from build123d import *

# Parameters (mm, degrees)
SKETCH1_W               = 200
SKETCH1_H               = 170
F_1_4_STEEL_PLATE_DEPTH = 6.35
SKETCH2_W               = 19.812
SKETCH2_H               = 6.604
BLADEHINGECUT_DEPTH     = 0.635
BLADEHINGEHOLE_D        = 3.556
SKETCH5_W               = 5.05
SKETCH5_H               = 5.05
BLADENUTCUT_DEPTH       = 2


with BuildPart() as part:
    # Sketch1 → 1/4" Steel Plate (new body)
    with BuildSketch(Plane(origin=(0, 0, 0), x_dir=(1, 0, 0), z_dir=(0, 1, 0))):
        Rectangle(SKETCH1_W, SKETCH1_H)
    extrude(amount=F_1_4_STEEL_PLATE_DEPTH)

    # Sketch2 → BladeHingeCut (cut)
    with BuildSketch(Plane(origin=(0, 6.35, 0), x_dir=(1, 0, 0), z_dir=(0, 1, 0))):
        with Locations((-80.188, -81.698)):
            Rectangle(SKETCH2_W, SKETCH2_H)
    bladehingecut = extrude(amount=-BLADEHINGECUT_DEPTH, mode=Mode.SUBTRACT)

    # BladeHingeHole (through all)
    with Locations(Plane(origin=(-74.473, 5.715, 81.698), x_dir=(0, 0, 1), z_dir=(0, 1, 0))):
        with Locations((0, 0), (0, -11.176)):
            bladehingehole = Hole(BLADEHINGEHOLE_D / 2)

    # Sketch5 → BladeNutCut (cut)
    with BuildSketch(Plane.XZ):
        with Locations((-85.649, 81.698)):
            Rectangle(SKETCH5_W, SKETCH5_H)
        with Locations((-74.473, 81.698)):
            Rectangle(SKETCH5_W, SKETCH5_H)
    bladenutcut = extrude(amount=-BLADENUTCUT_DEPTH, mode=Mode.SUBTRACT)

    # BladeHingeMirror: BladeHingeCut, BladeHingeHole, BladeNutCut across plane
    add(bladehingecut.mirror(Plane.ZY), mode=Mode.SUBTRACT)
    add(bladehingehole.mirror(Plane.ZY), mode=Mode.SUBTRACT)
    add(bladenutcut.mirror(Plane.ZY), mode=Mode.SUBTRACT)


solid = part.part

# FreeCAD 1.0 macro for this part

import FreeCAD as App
import Part
import Sketcher
Q = App.Units.Quantity

doc = App.newDocument("Part")
params = doc.addObject("Spreadsheet::Sheet", "Params")
for row, (alias, value) in enumerate([
    ("pad1_length", "0.25 in"),
    ("sketch2_width", "0.78 in"),
    ("sketch2_height", "0.26 in"),
    ("pocket1_length", "0.025 in"),
    ("sketch3_diameter", "0.14 in"),
    ("hole_diameter", "0.14 in"),
    ("pocket2_length", "2 mm"),
], start=1):
    params.set(f"A{row}", alias)
    params.set(f"B{row}", "=" + value)
    params.setAlias(f"B{row}", alias)

body = doc.addObject("PartDesign::Body", "Body")

# Sketch on XZ plane
sketch1 = doc.addObject("Sketcher::SketchObject", "Sketch")
body.addObject(sketch1)
sketch1.AttachmentSupport = (doc.XZ_Plane, [""])
sketch1.MapMode = "FlatFace"
sketch1.addGeometry([
    Part.LineSegment(App.Vector(-100, -85, 0), App.Vector(-100, 85, 0)),
    Part.LineSegment(App.Vector(-100, 85, 0), App.Vector(100, 85, 0)),
    Part.LineSegment(App.Vector(100, 85, 0), App.Vector(100, -85, 0)),
    Part.LineSegment(App.Vector(100, -85, 0), App.Vector(-100, -85, 0)),
], False)
sketch1.addConstraint([
    Sketcher.Constraint("Coincident", 0, 2, 1, 1),
    Sketcher.Constraint("Coincident", 1, 2, 2, 1),
    Sketcher.Constraint("Coincident", 2, 2, 3, 1),
    Sketcher.Constraint("Coincident", 3, 2, 0, 1),
    Sketcher.Constraint("Vertical", 0),
    Sketcher.Constraint("Horizontal", 1),
    Sketcher.Constraint("Vertical", 2),
    Sketcher.Constraint("Horizontal", 3),
    Sketcher.Constraint("Symmetric", 0, 2, 2, 2, -1, 1),
    Sketcher.Constraint("DistanceX", 1, 1, 1, 2, Q("200 mm")),
    Sketcher.Constraint("DistanceY", 0, 1, 0, 2, Q("170 mm")),
])
pad1 = doc.addObject("PartDesign::Pad", "Pad")
body.addObject(pad1)
pad1.Profile = sketch1
pad1.setExpression("Length", "Params.pad1_length")
pad1.Reversed = True

# Sketch on XZ plane
sketch2 = doc.addObject("Sketcher::SketchObject", "Sketch001")
body.addObject(sketch2)
sketch2.AttachmentSupport = (doc.XZ_Plane, [""])
sketch2.MapMode = "FlatFace"
sketch2.AttachmentOffset = App.Placement(App.Vector(0, 0, -0.25 * 25.4), App.Rotation())
sketch2.addGeometry([
    Part.LineSegment(App.Vector(-90, 78, 0), App.Vector(-90, 85, 0)),
    Part.LineSegment(App.Vector(-90, 85, 0), App.Vector(-70, 85, 0)),
    Part.LineSegment(App.Vector(-70, 85, 0), App.Vector(-70, 78, 0)),
    Part.LineSegment(App.Vector(-70, 78, 0), App.Vector(-90, 78, 0)),
], False)
sketch2.addConstraint([
    Sketcher.Constraint("Coincident", 0, 2, 1, 1),
    Sketcher.Constraint("Coincident", 1, 2, 2, 1),
    Sketcher.Constraint("Coincident", 2, 2, 3, 1),
    Sketcher.Constraint("Coincident", 3, 2, 0, 1),
    Sketcher.Constraint("Vertical", 0),
    Sketcher.Constraint("Horizontal", 1),
    Sketcher.Constraint("Vertical", 2),
    Sketcher.Constraint("Horizontal", 3),
    Sketcher.Constraint("DistanceX", 1, 1, 1, 2, Q("0.78 in")),
    Sketcher.Constraint("DistanceY", 0, 1, 0, 2, Q("0.26 in")),
    Sketcher.Constraint("DistanceX", 0, 2, -1, 1, Q("90.094 mm")),
    Sketcher.Constraint("DistanceY", -1, 1, 0, 2, Q("85 mm")),
])
sketch2.setExpression("Constraints[8]", "Params.sketch2_width")
sketch2.setExpression("Constraints[9]", "Params.sketch2_height")
pocket1 = doc.addObject("PartDesign::Pocket", "Pocket")
body.addObject(pocket1)
pocket1.Profile = sketch2
pocket1.setExpression("Length", "Params.pocket1_length")
pocket1.Reversed = True

# Sketch on XZ plane
sketch3 = doc.addObject("Sketcher::SketchObject", "Sketch002")
body.addObject(sketch3)
sketch3.AttachmentSupport = (doc.XZ_Plane, [""])
sketch3.MapMode = "FlatFace"
sketch3.AttachmentOffset = App.Placement(App.Vector(0, 0, -0.225 * 25.4), App.Rotation())
sketch3.addGeometry([
    Part.Circle(App.Vector(-74.5, 81.7, 0), App.Vector(0, 0, 1), 1.8),
    Part.Circle(App.Vector(-85.6, 81.7, 0), App.Vector(0, 0, 1), 1.8),
], False)
sketch3.addConstraint([
    Sketcher.Constraint("Equal", 0, 1),
    Sketcher.Constraint("Horizontal", 0, 3, 1, 3),
    Sketcher.Constraint("Diameter", 0, Q("0.14 in")),
    Sketcher.Constraint("DistanceX", 1, 3, 0, 3, Q("0.44 in")),
    Sketcher.Constraint("DistanceX", 0, 3, -1, 1, Q("74.473 mm")),
    Sketcher.Constraint("DistanceY", -1, 1, 0, 3, Q("81.698 mm")),
])
sketch3.setExpression("Constraints[2]", "Params.sketch3_diameter")
doc.recompute()
hole = doc.addObject("PartDesign::Hole", "Hole")
body.addObject(hole)
hole.Profile = sketch3
hole.ThreadType = "None"
hole.setExpression("Diameter", "Params.hole_diameter")
hole.DepthType = "ThroughAll"
hole.Reversed = True

# Sketch on XZ plane
sketch4 = doc.addObject("Sketcher::SketchObject", "Sketch003")
body.addObject(sketch4)
sketch4.AttachmentSupport = (doc.XZ_Plane, [""])
sketch4.MapMode = "FlatFace"
sketch4.addGeometry([
    Part.LineSegment(App.Vector(-88, 84, 0), App.Vector(-88, 79, 0)),  # 0
    Part.LineSegment(App.Vector(-88, 79, 0), App.Vector(-83, 79, 0)),  # 1
    Part.LineSegment(App.Vector(-83, 79, 0), App.Vector(-83, 84, 0)),  # 2
    Part.LineSegment(App.Vector(-83, 84, 0), App.Vector(-88, 84, 0)),  # 3
    Part.LineSegment(App.Vector(-77, 84, 0), App.Vector(-77, 79, 0)),  # 4
    Part.LineSegment(App.Vector(-77, 79, 0), App.Vector(-72, 79, 0)),  # 5
    Part.LineSegment(App.Vector(-72, 79, 0), App.Vector(-72, 84, 0)),  # 6
    Part.LineSegment(App.Vector(-72, 84, 0), App.Vector(-77, 84, 0)),  # 7
], False)
sketch4.addConstraint([
    Sketcher.Constraint("Coincident", 0, 2, 1, 1),
    Sketcher.Constraint("Coincident", 1, 2, 2, 1),
    Sketcher.Constraint("Coincident", 2, 2, 3, 1),
    Sketcher.Constraint("Coincident", 3, 2, 0, 1),
    Sketcher.Constraint("Coincident", 4, 2, 5, 1),
    Sketcher.Constraint("Coincident", 5, 2, 6, 1),
    Sketcher.Constraint("Coincident", 6, 2, 7, 1),
    Sketcher.Constraint("Coincident", 7, 2, 4, 1),
    Sketcher.Constraint("Vertical", 0),
    Sketcher.Constraint("Horizontal", 1),
    Sketcher.Constraint("Vertical", 2),
    Sketcher.Constraint("Horizontal", 3),
    Sketcher.Constraint("Vertical", 4),
    Sketcher.Constraint("Horizontal", 5),
    Sketcher.Constraint("Vertical", 6),
    Sketcher.Constraint("Horizontal", 7),
    Sketcher.Constraint("Horizontal", 1, 2, 4, 2),
    Sketcher.Constraint("Horizontal", 3, 2, 6, 2),
    Sketcher.Constraint("Equal", 3, 5),
    Sketcher.Constraint("Equal", 7, 0),
    Sketcher.Constraint("DistanceX", 0, 2, 4, 2, Q("0.44 in")),
    Sketcher.Constraint("DistanceX", 1, 1, 1, 2, Q("5.05 mm")),
    Sketcher.Constraint("DistanceX", 0, 2, -1, 1, Q("88.174 mm")),
    Sketcher.Constraint("DistanceY", -1, 1, 0, 2, Q("79.173 mm")),
])
pocket2 = doc.addObject("PartDesign::Pocket", "Pocket001")
body.addObject(pocket2)
pocket2.Profile = sketch4
pocket2.setExpression("Length", "Params.pocket2_length")
doc.recompute()

mirrored = doc.addObject("PartDesign::Mirrored", "Mirrored")
body.addObject(mirrored)
mirrored.Originals = [pocket1, hole, pocket2]
mirrored.MirrorPlane = (doc.YZ_Plane, [""])
body.Tip = mirrored

doc.recompute()
